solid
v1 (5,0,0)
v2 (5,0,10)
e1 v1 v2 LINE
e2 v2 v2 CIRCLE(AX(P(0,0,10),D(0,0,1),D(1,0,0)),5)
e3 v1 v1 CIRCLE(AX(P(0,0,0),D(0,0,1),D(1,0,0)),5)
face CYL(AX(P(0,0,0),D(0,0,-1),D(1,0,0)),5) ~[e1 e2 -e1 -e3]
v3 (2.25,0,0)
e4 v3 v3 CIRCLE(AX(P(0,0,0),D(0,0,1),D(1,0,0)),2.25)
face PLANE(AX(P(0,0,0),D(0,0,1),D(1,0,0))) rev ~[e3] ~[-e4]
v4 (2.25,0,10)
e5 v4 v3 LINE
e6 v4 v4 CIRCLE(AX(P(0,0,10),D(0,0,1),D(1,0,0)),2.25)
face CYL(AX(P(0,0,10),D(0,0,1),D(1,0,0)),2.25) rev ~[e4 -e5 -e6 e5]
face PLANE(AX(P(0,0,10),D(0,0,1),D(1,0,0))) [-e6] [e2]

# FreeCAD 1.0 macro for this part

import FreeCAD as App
import Part
import Sketcher

V = App.Vector
Q = App.Units.Quantity

doc = App.newDocument("Part")
body = doc.addObject("PartDesign::Body", "Body")

# Sketch on XY plane
sketch1 = body.newObject("Sketcher::SketchObject", "Sketch")
sketch1.AttachmentSupport = (doc.getObject("XY_Plane"), [""])
sketch1.MapMode = "FlatFace"
sketch1.addGeometry(Part.Circle(V(0, 0, 0), V(0, 0, 1), 5), False)
sketch1.addConstraint(Sketcher.Constraint("Coincident", 0, 3, -1, 1))
sketch1.addConstraint(Sketcher.Constraint("Diameter", 0, Q("10 mm")))
pad1 = body.newObject("PartDesign::Pad", "Pad")
pad1.Profile = sketch1
pad1.Length = 10

# Sketch on XY plane
sketch2 = body.newObject("Sketcher::SketchObject", "Sketch001")
sketch2.AttachmentSupport = (doc.getObject("XY_Plane"), [""])
sketch2.MapMode = "FlatFace"
sketch2.AttachmentOffset = App.Placement(V(0, 0, 10), App.Rotation())
sketch2.addGeometry(Part.Circle(V(0, 0, 0), V(0, 0, 1), 2.2), False)
sketch2.addConstraint(Sketcher.Constraint("Coincident", 0, 3, -1, 1))
sketch2.addConstraint(Sketcher.Constraint("Diameter", 0, Q("4.5 mm")))
pocket1 = body.newObject("PartDesign::Pocket", "Pocket")
pocket1.Profile = sketch2
pocket1.Type = "ThroughAll"

doc.recompute()
